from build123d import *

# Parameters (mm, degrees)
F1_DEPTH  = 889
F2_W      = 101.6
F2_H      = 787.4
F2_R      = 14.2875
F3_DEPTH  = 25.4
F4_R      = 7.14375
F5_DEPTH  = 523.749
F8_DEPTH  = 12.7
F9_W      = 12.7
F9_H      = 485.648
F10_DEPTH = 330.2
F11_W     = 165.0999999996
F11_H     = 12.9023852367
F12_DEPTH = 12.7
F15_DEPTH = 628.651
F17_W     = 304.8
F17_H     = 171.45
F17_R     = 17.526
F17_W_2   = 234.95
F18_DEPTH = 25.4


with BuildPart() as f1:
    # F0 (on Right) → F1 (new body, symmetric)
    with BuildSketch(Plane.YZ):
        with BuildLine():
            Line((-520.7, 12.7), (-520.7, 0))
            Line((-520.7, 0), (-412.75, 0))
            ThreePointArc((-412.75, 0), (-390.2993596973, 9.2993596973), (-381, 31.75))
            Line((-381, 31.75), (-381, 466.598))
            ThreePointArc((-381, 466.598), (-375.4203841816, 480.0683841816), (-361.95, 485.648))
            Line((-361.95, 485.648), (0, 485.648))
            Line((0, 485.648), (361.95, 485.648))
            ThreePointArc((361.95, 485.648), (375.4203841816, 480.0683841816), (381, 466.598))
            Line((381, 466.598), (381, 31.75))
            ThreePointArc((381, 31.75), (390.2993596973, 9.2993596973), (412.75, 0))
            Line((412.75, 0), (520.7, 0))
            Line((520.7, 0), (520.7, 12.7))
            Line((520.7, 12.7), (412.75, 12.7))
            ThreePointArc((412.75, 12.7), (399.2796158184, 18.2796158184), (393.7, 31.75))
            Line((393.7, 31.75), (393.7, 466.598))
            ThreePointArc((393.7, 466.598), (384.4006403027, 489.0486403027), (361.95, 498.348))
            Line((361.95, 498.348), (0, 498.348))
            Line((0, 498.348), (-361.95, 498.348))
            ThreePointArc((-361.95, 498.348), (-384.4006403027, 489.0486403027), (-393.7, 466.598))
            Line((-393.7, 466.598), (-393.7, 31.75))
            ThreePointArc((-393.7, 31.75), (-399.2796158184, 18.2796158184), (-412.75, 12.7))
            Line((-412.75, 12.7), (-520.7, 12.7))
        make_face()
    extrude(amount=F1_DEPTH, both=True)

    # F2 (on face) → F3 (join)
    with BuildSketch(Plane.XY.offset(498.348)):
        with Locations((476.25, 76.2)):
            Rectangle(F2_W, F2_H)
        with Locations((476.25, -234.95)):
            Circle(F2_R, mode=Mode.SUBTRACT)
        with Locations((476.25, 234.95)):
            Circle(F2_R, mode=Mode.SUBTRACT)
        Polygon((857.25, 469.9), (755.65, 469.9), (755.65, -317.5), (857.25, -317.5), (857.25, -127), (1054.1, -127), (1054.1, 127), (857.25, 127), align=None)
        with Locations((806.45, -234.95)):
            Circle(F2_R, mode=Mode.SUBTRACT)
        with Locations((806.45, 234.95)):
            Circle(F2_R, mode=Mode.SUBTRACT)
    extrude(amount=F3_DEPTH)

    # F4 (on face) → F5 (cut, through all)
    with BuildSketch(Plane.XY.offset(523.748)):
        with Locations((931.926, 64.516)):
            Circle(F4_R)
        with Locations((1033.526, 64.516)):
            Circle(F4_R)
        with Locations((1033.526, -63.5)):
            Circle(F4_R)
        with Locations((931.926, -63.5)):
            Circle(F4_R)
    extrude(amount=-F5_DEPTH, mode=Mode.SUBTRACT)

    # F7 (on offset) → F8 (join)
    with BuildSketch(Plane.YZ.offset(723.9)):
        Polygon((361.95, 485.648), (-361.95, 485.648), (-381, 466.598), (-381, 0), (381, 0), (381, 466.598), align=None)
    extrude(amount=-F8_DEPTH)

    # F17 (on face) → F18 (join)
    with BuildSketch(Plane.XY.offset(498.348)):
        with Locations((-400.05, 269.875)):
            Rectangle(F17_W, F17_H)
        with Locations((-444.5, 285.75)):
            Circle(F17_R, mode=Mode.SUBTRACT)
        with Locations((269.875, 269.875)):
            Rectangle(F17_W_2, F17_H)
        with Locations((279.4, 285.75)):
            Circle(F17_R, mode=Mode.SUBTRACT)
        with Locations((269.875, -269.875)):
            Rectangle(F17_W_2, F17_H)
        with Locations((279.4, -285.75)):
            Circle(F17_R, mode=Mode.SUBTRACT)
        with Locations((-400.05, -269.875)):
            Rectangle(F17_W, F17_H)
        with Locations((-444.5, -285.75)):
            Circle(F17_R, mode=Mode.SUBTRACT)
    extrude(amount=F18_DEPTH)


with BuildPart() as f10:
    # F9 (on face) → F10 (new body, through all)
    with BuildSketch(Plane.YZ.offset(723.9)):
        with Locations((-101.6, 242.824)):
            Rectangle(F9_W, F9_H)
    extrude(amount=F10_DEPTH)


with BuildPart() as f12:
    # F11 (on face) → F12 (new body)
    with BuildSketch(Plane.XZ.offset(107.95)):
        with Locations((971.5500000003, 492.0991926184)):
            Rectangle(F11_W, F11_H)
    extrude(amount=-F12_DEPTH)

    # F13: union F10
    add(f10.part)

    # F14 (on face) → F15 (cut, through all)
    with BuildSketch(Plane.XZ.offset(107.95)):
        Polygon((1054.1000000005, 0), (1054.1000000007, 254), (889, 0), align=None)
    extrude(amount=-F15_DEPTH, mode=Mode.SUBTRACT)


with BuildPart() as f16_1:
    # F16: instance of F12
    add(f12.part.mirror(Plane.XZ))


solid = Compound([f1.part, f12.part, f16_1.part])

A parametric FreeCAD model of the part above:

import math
import FreeCAD as App
import Part
import Sketcher
from FreeCAD import Vector
Q = App.Units.Quantity


def add_polygon(sketch, points):
    """Adds a closed chain of lines whose ends are joined by coincident constraints."""
    first, n = sketch.GeometryCount, len(points)
    for a, b in zip(points, points[1:] + points[:1]):
        sketch.addGeometry(Part.LineSegment(App.Vector(*a, 0), App.Vector(*b, 0)), False)
    for i in range(n):
        sketch.addConstraint(Sketcher.Constraint("Coincident", first + i, 2, first + (i + 1) % n, 1))

doc = App.newDocument("Part")
body = doc.addObject("PartDesign::Body", "Body")

# Sketch on YZ plane
sketch1 = doc.addObject("Sketcher::SketchObject", "Sketch")
body.addObject(sketch1)
sketch1.AttachmentSupport = (doc.YZ_Plane, [""])
sketch1.MapMode = "FlatFace"
sketch1.addGeometry([
    Part.LineSegment(Vector(-521, 13, 0), Vector(-521, 0, 0)),  # 0
    Part.LineSegment(Vector(-521, 0, 0), Vector(-413, 0, 0)),  # 1
    Part.ArcOfCircle(Part.Circle(Vector(-413, 32, 0), Vector(0, 0, 1), 32), math.radians(-90), math.radians(0)),  # 2
    Part.LineSegment(Vector(-381, 32, 0), Vector(-381, 467, 0)),  # 3
    Part.ArcOfCircle(Part.Circle(Vector(-362, 467, 0), Vector(0, 0, 1), 19), math.radians(90), math.radians(180)),  # 4
    Part.LineSegment(Vector(-362, 486, 0), Vector(362, 486, 0)),  # 5
    Part.ArcOfCircle(Part.Circle(Vector(362, 467, 0), Vector(0, 0, 1), 19), math.radians(0), math.radians(90)),  # 6
    Part.LineSegment(Vector(381, 467, 0), Vector(381, 32, 0)),  # 7
    Part.ArcOfCircle(Part.Circle(Vector(413, 32, 0), Vector(0, 0, 1), 32), math.radians(180), math.radians(270)),  # 8
    Part.LineSegment(Vector(413, 0, 0), Vector(521, 0, 0)),  # 9
    Part.LineSegment(Vector(521, 0, 0), Vector(521, 13, 0)),  # 10
    Part.LineSegment(Vector(521, 13, 0), Vector(413, 13, 0)),  # 11
    Part.ArcOfCircle(Part.Circle(Vector(413, 32, 0), Vector(0, 0, 1), 19), math.radians(180), math.radians(270)),  # 12
    Part.LineSegment(Vector(394, 32, 0), Vector(394, 467, 0)),  # 13
    Part.ArcOfCircle(Part.Circle(Vector(362, 467, 0), Vector(0, 0, 1), 32), math.radians(0), math.radians(90)),  # 14
    Part.LineSegment(Vector(362, 498, 0), Vector(-362, 498, 0)),  # 15
    Part.ArcOfCircle(Part.Circle(Vector(-362, 467, 0), Vector(0, 0, 1), 32), math.radians(90), math.radians(180)),  # 16
    Part.LineSegment(Vector(-394, 467, 0), Vector(-394, 32, 0)),  # 17
    Part.ArcOfCircle(Part.Circle(Vector(-413, 32, 0), Vector(0, 0, 1), 19), math.radians(-90), math.radians(0)),  # 18
    Part.LineSegment(Vector(-413, 13, 0), Vector(-521, 13, 0)),  # 19
], False)
sketch1.addConstraint([
    Sketcher.Constraint("Coincident", 0, 2, 1, 1),
    Sketcher.Constraint("Tangent", 1, 2, 2, 1),
    Sketcher.Constraint("Tangent", 2, 2, 3, 1),
    Sketcher.Constraint("Tangent", 3, 2, 4, 2),
    Sketcher.Constraint("Tangent", 4, 1, 5, 1),
    Sketcher.Constraint("Tangent", 5, 2, 6, 2),
    Sketcher.Constraint("Tangent", 6, 1, 7, 1),
    Sketcher.Constraint("Tangent", 7, 2, 8, 1),
    Sketcher.Constraint("Tangent", 8, 2, 9, 1),
    Sketcher.Constraint("Coincident", 9, 2, 10, 1),
    Sketcher.Constraint("Coincident", 10, 2, 11, 1),
    Sketcher.Constraint("Tangent", 11, 2, 12, 2),
    Sketcher.Constraint("Tangent", 12, 1, 13, 1),
    Sketcher.Constraint("Tangent", 13, 2, 14, 1),
    Sketcher.Constraint("Tangent", 14, 2, 15, 1),
    Sketcher.Constraint("Tangent", 15, 2, 16, 1),
    Sketcher.Constraint("Tangent", 16, 2, 17, 1),
    Sketcher.Constraint("Tangent", 17, 2, 18, 2),
    Sketcher.Constraint("Tangent", 18, 1, 19, 1),
    Sketcher.Constraint("Coincident", 19, 2, 0, 1),
    Sketcher.Constraint("Vertical", 0),
    Sketcher.Constraint("Horizontal", 1),
    Sketcher.Constraint("Vertical", 3),
    Sketcher.Constraint("Horizontal", 5),
    Sketcher.Constraint("Vertical", 7),
    Sketcher.Constraint("Horizontal", 9),
    Sketcher.Constraint("Vertical", 10),
    Sketcher.Constraint("Horizontal", 11),
    Sketcher.Constraint("Vertical", 13),
    Sketcher.Constraint("Horizontal", 15),
    Sketcher.Constraint("Vertical", 17),
    Sketcher.Constraint("Horizontal", 19),
    Sketcher.Constraint("Coincident", 12, 3, 8, 3),
    Sketcher.Constraint("Coincident", 14, 3, 6, 3),
    Sketcher.Constraint("Coincident", 16, 3, 4, 3),
    Sketcher.Constraint("Coincident", 18, 3, 2, 3),
    Sketcher.Constraint("Equal", 4, 6),
    Sketcher.Constraint("Equal", 2, 8),
    Sketcher.Constraint("Equal", 6, 12),
    Sketcher.Constraint("Symmetric", 1, 2, 8, 2, -1, 1),
    Sketcher.Constraint("Symmetric", 0, 2, 9, 2, -2),
    Sketcher.Constraint("Radius", 2, Q("1.25 in")),
    Sketcher.Constraint("Radius", 4, Q("0.75 in")),
    Sketcher.Constraint("DistanceX", 5, 1, 5, 2, Q("28.5 in")),
    Sketcher.Constraint("DistanceX", 0, 2, 17, 2, Q("5 in")),
    Sketcher.Constraint("DistanceY", 3, 1, 3, 2, Q("17.12 in")),
])
pad1 = doc.addObject("PartDesign::Pad", "Pad")
body.addObject(pad1)
pad1.Profile = sketch1
pad1.Length = Q("70 in")
pad1.Midplane = True

# Sketch on XY plane
sketch2 = doc.addObject("Sketcher::SketchObject", "Sketch001")
body.addObject(sketch2)
sketch2.AttachmentSupport = (doc.XY_Plane, [""])
sketch2.MapMode = "FlatFace"
sketch2.AttachmentOffset = App.Placement(Vector(0, 0, 19.62 * 25.4), App.Rotation())
add_polygon(sketch2, [(425, 470), (425, -318), (527, -318), (527, 470)])  # lines 0-3
sketch2.addGeometry(Part.Circle(Vector(476, -235, 0), Vector(0, 0, 1), 14), False)  # 4
sketch2.addGeometry(Part.Circle(Vector(476, 235, 0), Vector(0, 0, 1), 14), False)  # 5
add_polygon(sketch2, [(857, 470), (756, 470), (756, -318), (857, -318), (857, -127), (1054, -127), (1054, 127), (857, 127)])  # lines 6-13
sketch2.addGeometry(Part.Circle(Vector(806, -235, 0), Vector(0, 0, 1), 14), False)  # 14
sketch2.addGeometry(Part.Circle(Vector(806, 235, 0), Vector(0, 0, 1), 14), False)  # 15
sketch2.addConstraint([
    Sketcher.Constraint("Vertical", 0),
    Sketcher.Constraint("Horizontal", 1),
    Sketcher.Constraint("Vertical", 2),
    Sketcher.Constraint("Horizontal", 3),
    Sketcher.Constraint("Horizontal", 6),
    Sketcher.Constraint("Vertical", 7),
    Sketcher.Constraint("Horizontal", 8),
    Sketcher.Constraint("Vertical", 9),
    Sketcher.Constraint("Horizontal", 10),
    Sketcher.Constraint("Vertical", 11),
    Sketcher.Constraint("Horizontal", 12),
    Sketcher.Constraint("Vertical", 13),
    Sketcher.Constraint("Equal", 4, 5),
    Sketcher.Constraint("Equal", 5, 14),
    Sketcher.Constraint("Equal", 14, 15),
    Sketcher.Constraint("Symmetric", 4, 3, 5, 3, -1),
    Sketcher.Constraint("Symmetric", 14, 3, 15, 3, -1),
    Sketcher.Constraint("Symmetric", 9, 2, 12, 2, -1),
    Sketcher.Constraint("Horizontal", 4, 3, 14, 3),
    Sketcher.Constraint("Horizontal", 3, 2, 6, 2),
    Sketcher.Constraint("Horizontal", 1, 2, 7, 2),
    Sketcher.Constraint("Equal", 3, 6),
    Sketcher.Constraint("DistanceX", 1, 1, 1, 2, Q("4 in")),
    Sketcher.Constraint("DistanceY", 0, 2, 0, 1, Q("31 in")),
    Sketcher.Constraint("DistanceY", 11, 1, 11, 2, Q("10 in")),
    Sketcher.Constraint("Diameter", 4, Q("1.125 in")),
    Sketcher.Constraint("DistanceY", 9, 1, 9, 2, Q("7.5 in")),
    Sketcher.Constraint("DistanceX", 4, 3, 14, 3, Q("13 in")),
    Sketcher.Constraint("DistanceX", 0, 2, 4, 3, Q("2 in")),
    Sketcher.Constraint("DistanceX", 2, 2, 6, 2, Q("9 in")),
    Sketcher.Constraint("DistanceX", 10, 1, 10, 2, Q("7.75 in")),
    Sketcher.Constraint("DistanceX", -1, 1, 10, 2, Q("41.5 in")),
    Sketcher.Constraint("DistanceY", 4, 3, 5, 3, Q("18.5 in")),
])
pad2 = doc.addObject("PartDesign::Pad", "Pad001")
body.addObject(pad2)
pad2.Profile = sketch2
pad2.Length = Q("1 in")

# Sketch on XY plane
sketch3 = doc.addObject("Sketcher::SketchObject", "Sketch002")
body.addObject(sketch3)
sketch3.AttachmentSupport = (doc.XY_Plane, [""])
sketch3.MapMode = "FlatFace"
sketch3.AttachmentOffset = App.Placement(Vector(0, 0, 20.62 * 25.4), App.Rotation())
sketch3.addGeometry([
    Part.Circle(Vector(932, 65, 0), Vector(0, 0, 1), 7),
    Part.Circle(Vector(1034, 65, 0), Vector(0, 0, 1), 7),
    Part.Circle(Vector(1034, -64, 0), Vector(0, 0, 1), 7),
    Part.Circle(Vector(932, -64, 0), Vector(0, 0, 1), 7),
], False)
sketch3.addConstraint([
    Sketcher.Constraint("Equal", 0, 1),
    Sketcher.Constraint("Equal", 1, 2),
    Sketcher.Constraint("Equal", 2, 3),
    Sketcher.Constraint("Horizontal", 0, 3, 1, 3),
    Sketcher.Constraint("Horizontal", 2, 3, 3, 3),
    Sketcher.Constraint("Vertical", 1, 3, 2, 3),
    Sketcher.Constraint("Vertical", 0, 3, 3, 3),
    Sketcher.Constraint("Diameter", 0, Q("0.5625 in")),
    Sketcher.Constraint("DistanceX", 0, 3, 1, 3, Q("4 in")),
    Sketcher.Constraint("DistanceY", 2, 3, -1, 1, Q("2.5 in")),
    Sketcher.Constraint("DistanceX", -1, 1, 0, 3, Q("36.69 in")),
    Sketcher.Constraint("DistanceY", -1, 1, 0, 3, Q("2.54 in")),
])
pocket1 = doc.addObject("PartDesign::Pocket", "Pocket")
body.addObject(pocket1)
pocket1.Profile = sketch3
pocket1.Type = "ThroughAll"

# Sketch on YZ plane
sketch4 = doc.addObject("Sketcher::SketchObject", "Sketch003")
body.addObject(sketch4)
sketch4.AttachmentSupport = (doc.YZ_Plane, [""])
sketch4.MapMode = "FlatFace"
sketch4.AttachmentOffset = App.Placement(Vector(0, 0, 28.5 * 25.4), App.Rotation())
add_polygon(sketch4, [(362, 486), (-362, 486), (-381, 467), (-381, 0), (381, 0), (381, 467)])  # lines 0-5
sketch4.addConstraint([
    Sketcher.Constraint("Horizontal", 0),
    Sketcher.Constraint("Vertical", 2),
    Sketcher.Constraint("Horizontal", 3),
    Sketcher.Constraint("Vertical", 4),
    Sketcher.Constraint("Symmetric", 2, 2, 3, 2, -1, 1),
    Sketcher.Constraint("Perpendicular", 1, 5),
    Sketcher.Constraint("Horizontal", 1, 2, 4, 2),
    Sketcher.Constraint("Equal", 1, 5),
    Sketcher.Constraint("DistanceX", 3, 1, 3, 2, Q("30 in")),
    Sketcher.Constraint("DistanceX", 0, 2, 0, 1, Q("28.5 in")),
    Sketcher.Constraint("DistanceY", 2, 2, 2, 1, Q("18.37 in")),
])
pad3 = doc.addObject("PartDesign::Pad", "Pad002")
body.addObject(pad3)
pad3.Profile = sketch4
pad3.Length = Q("0.5 in")
pad3.Reversed = True

# Sketch on XY plane
sketch5 = doc.addObject("Sketcher::SketchObject", "Sketch004")
body.addObject(sketch5)
sketch5.AttachmentSupport = (doc.XY_Plane, [""])
sketch5.MapMode = "FlatFace"
sketch5.AttachmentOffset = App.Placement(Vector(0, 0, 19.62 * 25.4), App.Rotation())
add_polygon(sketch5, [(-552, 356), (-552, 184), (-248, 184), (-248, 356)])  # lines 0-3
sketch5.addGeometry(Part.Circle(Vector(-444, 286, 0), Vector(0, 0, 1), 18), False)  # 4
add_polygon(sketch5, [(152, 356), (152, 184), (387, 184), (387, 356)])  # lines 5-8
sketch5.addGeometry(Part.Circle(Vector(279, 286, 0), Vector(0, 0, 1), 18), False)  # 9
add_polygon(sketch5, [(152, -184), (152, -356), (387, -356), (387, -184)])  # lines 10-13
sketch5.addGeometry(Part.Circle(Vector(279, -286, 0), Vector(0, 0, 1), 18), False)  # 14
add_polygon(sketch5, [(-552, -184), (-552, -356), (-248, -356), (-248, -184)])  # lines 15-18
sketch5.addGeometry(Part.Circle(Vector(-444, -286, 0), Vector(0, 0, 1), 18), False)  # 19
sketch5.addConstraint([
    Sketcher.Constraint("Vertical", 0),
    Sketcher.Constraint("Horizontal", 1),
    Sketcher.Constraint("Vertical", 2),
    Sketcher.Constraint("Horizontal", 3),
    Sketcher.Constraint("Vertical", 5),
    Sketcher.Constraint("Horizontal", 6),
    Sketcher.Constraint("Vertical", 7),
    Sketcher.Constraint("Horizontal", 8),
    Sketcher.Constraint("Vertical", 10),
    Sketcher.Constraint("Horizontal", 11),
    Sketcher.Constraint("Vertical", 12),
    Sketcher.Constraint("Horizontal", 13),
    Sketcher.Constraint("Vertical", 15),
    Sketcher.Constraint("Horizontal", 16),
    Sketcher.Constraint("Vertical", 17),
    Sketcher.Constraint("Horizontal", 18),
    Sketcher.Constraint("Equal", 4, 9),
    Sketcher.Constraint("Equal", 9, 14),
    Sketcher.Constraint("Equal", 14, 19),
    Sketcher.Constraint("Symmetric", 9, 3, 14, 3, -1),
    Sketcher.Constraint("Symmetric", 4, 3, 19, 3, -1),
    Sketcher.Constraint("Symmetric", 8, 2, 10, 2, -1),
    Sketcher.Constraint("Symmetric", 6, 2, 12, 2, -1),
    Sketcher.Constraint("Symmetric", 3, 2, 15, 2, -1),
    Sketcher.Constraint("Symmetric", 1, 2, 17, 2, -1),
    Sketcher.Constraint("Horizontal", 4, 3, 9, 3),
    Sketcher.Constraint("Horizontal", 1, 2, 5, 2),
    Sketcher.Constraint("Horizontal", 3, 2, 7, 2),
    Sketcher.Constraint("Diameter", 4, Q("1.38 in")),
    Sketcher.Constraint("DistanceX", 1, 1, 1, 2, Q("12 in")),
    Sketcher.Constraint("DistanceX", -1, 1, 9, 3, Q("11 in")),
    Sketcher.Constraint("DistanceY", -1, 1, 2, 2, Q("14 in")),
    Sketcher.Constraint("DistanceX", -1, 1, 5, 2, Q("6 in")),
    Sketcher.Constraint("DistanceY", 0, 2, 4, 3, Q("4 in")),
    Sketcher.Constraint("DistanceX", 1, 2, 6, 2, Q("25 in")),
    Sketcher.Constraint("DistanceX", 6, 1, 6, 2, Q("9.25 in")),
    Sketcher.Constraint("DistanceY", 0, 2, 0, 1, Q("6.75 in")),
    Sketcher.Constraint("DistanceX", 4, 3, -1, 1, Q("17.5 in")),
])
pad4 = doc.addObject("PartDesign::Pad", "Pad003")
body.addObject(pad4)
pad4.Profile = sketch5
pad4.Length = Q("1 in")
body2 = doc.addObject("PartDesign::Body", "Body001")

# Sketch on YZ plane
sketch6 = doc.addObject("Sketcher::SketchObject", "Sketch005")
body2.addObject(sketch6)
sketch6.AttachmentSupport = (doc.getObject("YZ_Plane001"), [""])
sketch6.MapMode = "FlatFace"
sketch6.AttachmentOffset = App.Placement(Vector(0, 0, 28.5 * 25.4), App.Rotation())
add_polygon(sketch6, [(-108, 486), (-108, 0), (-95, 0), (-95, 486)])  # lines 0-3
sketch6.addConstraint([
    Sketcher.Constraint("Vertical", 0),
    Sketcher.Constraint("Horizontal", 1),
    Sketcher.Constraint("Vertical", 2),
    Sketcher.Constraint("Horizontal", 3),
    Sketcher.Constraint("PointOnObject", 0, 2, -1),
    Sketcher.Constraint("DistanceX", 1, 1, 1, 2, Q("0.5 in")),
    Sketcher.Constraint("DistanceY", 0, 2, 0, 1, Q("19.12 in")),
    Sketcher.Constraint("DistanceX", 0, 2, -1, 1, Q("4.25 in")),
])
pad5 = doc.addObject("PartDesign::Pad", "Pad004")
body2.addObject(pad5)
pad5.Profile = sketch6
pad5.Length = Q("13 in")
body3 = doc.addObject("PartDesign::Body", "Body002")

# Sketch on XZ plane
sketch7 = doc.addObject("Sketcher::SketchObject", "Sketch006")
body3.addObject(sketch7)
sketch7.AttachmentSupport = (doc.getObject("XZ_Plane002"), [""])
sketch7.MapMode = "FlatFace"
sketch7.AttachmentOffset = App.Placement(Vector(0, 0, 4.25 * 25.4), App.Rotation())
add_polygon(sketch7, [(889, 499), (889, 486), (1054, 486), (1054, 499)])  # lines 0-3
sketch7.addConstraint([
    Sketcher.Constraint("Vertical", 0),
    Sketcher.Constraint("Horizontal", 1),
    Sketcher.Constraint("Vertical", 2),
    Sketcher.Constraint("Horizontal", 3),
    Sketcher.Constraint("DistanceX", 1, 1, 1, 2, Q("6.5 in")),
    Sketcher.Constraint("DistanceX", -1, 1, 0, 2, Q("35 in")),
    Sketcher.Constraint("DistanceY", -1, 1, 0, 2, Q("19.12 in")),
    Sketcher.Constraint("DistanceY", 0, 2, 0, 1, 12.902385),
])
pad6 = doc.addObject("PartDesign::Pad", "Pad005")
body3.addObject(pad6)
pad6.Profile = sketch7
pad6.Length = Q("0.5 in")
pad6.Reversed = True
doc.recompute()

boolean = doc.addObject("PartDesign::Boolean", "Boolean")
body3.addObject(boolean)
boolean.Type = "Fuse"
boolean.addObjects([body2])

# Sketch on XZ plane
sketch8 = doc.addObject("Sketcher::SketchObject", "Sketch007")
body3.addObject(sketch8)
sketch8.AttachmentSupport = (doc.getObject("XZ_Plane002"), [""])
sketch8.MapMode = "FlatFace"
sketch8.AttachmentOffset = App.Placement(Vector(0, 0, 4.25 * 25.4), App.Rotation())
add_polygon(sketch8, [(1054, 0), (1054, 254), (889, 0)])  # lines 0-2
sketch8.addConstraint([
    Sketcher.Constraint("Vertical", 0),
    Sketcher.Constraint("Horizontal", 2),
    Sketcher.Constraint("PointOnObject", 1, 2, -1),
    Sketcher.Constraint("DistanceY", 0, 1, 0, 2, Q("10 in")),
    Sketcher.Constraint("DistanceX", 2, 1, 2, 2, Q("6.5 in")),
    Sketcher.Constraint("DistanceX", -1, 1, 1, 2, Q("35 in")),
])
pocket2 = doc.addObject("PartDesign::Pocket", "Pocket001")
body3.addObject(pocket2)
pocket2.Profile = sketch8
pocket2.Type = "ThroughAll"
body4 = doc.addObject("PartDesign::Body", "Body003")
doc.recompute()

mirroring = doc.addObject("Part::Mirroring", "Mirroring")
mirroring.Source = body3
mirroring.Base = Vector(0, 0, 0)
mirroring.Normal = Vector(0, -1, 0)
body4.BaseFeature = mirroring
doc.recompute()
mirroring.Visibility = False

doc.recompute()
